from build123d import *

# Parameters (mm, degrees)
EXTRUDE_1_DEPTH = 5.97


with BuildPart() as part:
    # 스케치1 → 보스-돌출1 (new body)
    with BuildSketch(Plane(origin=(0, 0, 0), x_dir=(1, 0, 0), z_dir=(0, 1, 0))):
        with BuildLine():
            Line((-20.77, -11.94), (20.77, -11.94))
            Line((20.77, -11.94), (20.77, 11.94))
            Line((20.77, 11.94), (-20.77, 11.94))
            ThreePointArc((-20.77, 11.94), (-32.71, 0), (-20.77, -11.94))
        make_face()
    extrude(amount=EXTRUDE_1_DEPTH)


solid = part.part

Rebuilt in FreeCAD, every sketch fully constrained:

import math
import FreeCAD as App
import Part
import Sketcher

V = App.Vector
Q = App.Units.Quantity

doc = App.newDocument("Part")
params = doc.addObject("Spreadsheet::Sheet", "Params")
for row, (alias, value) in enumerate([
    ("sketch1_radius", "11.94 mm"),
    ("sketch1_width", "41.54 mm"),
    ("pad1_length", "5.97 mm"),
], start=1):
    params.set(f"A{row}", alias)
    params.set(f"B{row}", "=" + value)
    params.setAlias(f"B{row}", alias)

body = doc.addObject("PartDesign::Body", "Body")

# Sketch on XZ plane
sketch1 = body.newObject("Sketcher::SketchObject", "Sketch")
sketch1.AttachmentSupport = (doc.getObject("XZ_Plane"), [""])
sketch1.MapMode = "FlatFace"
sketch1.addGeometry(Part.LineSegment(V(-21, 12, 0), V(21, 12, 0)), False)
sketch1.addGeometry(Part.LineSegment(V(21, 12, 0), V(21, -12, 0)), False)
sketch1.addGeometry(Part.LineSegment(V(21, -12, 0), V(-21, -12, 0)), False)
sketch1.addGeometry(Part.ArcOfCircle(Part.Circle(V(-21, 0, 0), V(0, 0, 1), 12), math.radians(90), math.radians(270)), False)
sketch1.addConstraint(Sketcher.Constraint("Coincident", 0, 2, 1, 1))
sketch1.addConstraint(Sketcher.Constraint("Coincident", 1, 2, 2, 1))
sketch1.addConstraint(Sketcher.Constraint("Tangent", 2, 2, 3, 2))
sketch1.addConstraint(Sketcher.Constraint("Tangent", 3, 1, 0, 1))
sketch1.addConstraint(Sketcher.Constraint("Horizontal", 0))
sketch1.addConstraint(Sketcher.Constraint("Vertical", 1))
sketch1.addConstraint(Sketcher.Constraint("Horizontal", 2))
sketch1.addConstraint(Sketcher.Constraint("Symmetric", 0, 2, 2, 2, -1, 1))
sketch1.addConstraint(Sketcher.Constraint("Radius", 3, Q("11.94 mm")))
sketch1.addConstraint(Sketcher.Constraint("DistanceX", 0, 1, 0, 2, Q("41.54 mm")))
sketch1.setExpression("Constraints[8]", "Params.sketch1_radius")
sketch1.setExpression("Constraints[9]", "Params.sketch1_width")
pad1 = body.newObject("PartDesign::Pad", "Pad")
pad1.Profile = sketch1
pad1.setExpression("Length", "Params.pad1_length")
pad1.Reversed = True

doc.recompute()
